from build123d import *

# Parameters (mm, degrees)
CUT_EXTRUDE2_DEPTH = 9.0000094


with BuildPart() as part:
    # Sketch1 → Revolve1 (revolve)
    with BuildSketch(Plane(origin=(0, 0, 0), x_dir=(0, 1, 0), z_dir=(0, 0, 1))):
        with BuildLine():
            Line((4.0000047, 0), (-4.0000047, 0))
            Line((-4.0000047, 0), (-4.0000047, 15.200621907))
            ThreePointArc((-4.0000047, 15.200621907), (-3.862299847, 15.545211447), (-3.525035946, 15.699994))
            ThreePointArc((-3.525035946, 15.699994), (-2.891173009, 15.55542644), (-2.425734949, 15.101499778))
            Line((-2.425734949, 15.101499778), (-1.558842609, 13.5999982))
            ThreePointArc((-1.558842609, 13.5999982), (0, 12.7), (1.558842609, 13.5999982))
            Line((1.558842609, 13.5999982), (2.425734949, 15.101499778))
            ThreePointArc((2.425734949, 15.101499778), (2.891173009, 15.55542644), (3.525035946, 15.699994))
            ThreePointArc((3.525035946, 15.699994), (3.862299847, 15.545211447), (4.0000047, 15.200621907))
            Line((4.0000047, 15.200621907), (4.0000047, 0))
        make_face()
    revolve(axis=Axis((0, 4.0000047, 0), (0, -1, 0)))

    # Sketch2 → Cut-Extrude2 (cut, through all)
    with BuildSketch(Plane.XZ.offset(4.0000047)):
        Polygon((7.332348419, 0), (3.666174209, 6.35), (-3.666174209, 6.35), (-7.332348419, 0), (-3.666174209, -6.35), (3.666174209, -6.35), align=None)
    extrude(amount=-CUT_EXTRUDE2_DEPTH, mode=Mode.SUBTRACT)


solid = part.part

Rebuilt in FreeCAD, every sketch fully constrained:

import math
import FreeCAD as App
import Part
import Sketcher

V = App.Vector
Q = App.Units.Quantity

doc = App.newDocument("Part")
body = doc.addObject("PartDesign::Body", "Body")

sketch1 = body.newObject("Sketcher::SketchObject", "Sketch")
sketch1.AttachmentSupport = (doc.getObject("XY_Plane"), [""])
sketch1.MapMode = "FlatFace"
sketch1.addGeometry([
    Part.LineSegment(V(0, -4, 0), V(0, 4, 0)),
    Part.LineSegment(V(0, 4, 0), V(-15.2, 4, 0)),
    Part.ArcOfCircle(Part.Circle(V(-15.2, 3.5, 0), V(0, 0, 1), 0.5), math.radians(90), math.radians(177)),
    Part.ArcOfCircle(Part.Circle(V(-14.5, 3.46, 0), V(0, 0, 1), 1.2), math.radians(177), math.radians(240)),
    Part.LineSegment(V(-15.1, 2.43, 0), V(-13.6, 1.56, 0)),
    Part.ArcOfCircle(Part.Circle(V(-14.5, 0, 0), V(0, 0, 1), 1.8), math.radians(-60), math.radians(60)),
    Part.LineSegment(V(-13.6, -1.56, 0), V(-15.1, -2.43, 0)),
    Part.ArcOfCircle(Part.Circle(V(-14.5, -3.46, 0), V(0, 0, 1), 1.2), math.radians(120), math.radians(183)),
    Part.ArcOfCircle(Part.Circle(V(-15.2, -3.5, 0), V(0, 0, 1), 0.5), math.radians(-177), math.radians(-90)),
    Part.LineSegment(V(-15.2, -4, 0), V(0, -4, 0)),
], False)
sketch1.addConstraint([
    Sketcher.Constraint("Coincident", 0, 2, 1, 1),
    Sketcher.Constraint("Tangent", 1, 2, 2, 1),
    Sketcher.Constraint("Tangent", 2, 2, 3, 1),
    Sketcher.Constraint("Tangent", 3, 2, 4, 1),
    Sketcher.Constraint("Tangent", 4, 2, 5, 2),
    Sketcher.Constraint("Tangent", 5, 1, 6, 1),
    Sketcher.Constraint("Tangent", 6, 2, 7, 1),
    Sketcher.Constraint("Tangent", 7, 2, 8, 1),
    Sketcher.Constraint("Tangent", 8, 2, 9, 1),
    Sketcher.Constraint("Coincident", 9, 2, 0, 1),
    Sketcher.Constraint("Vertical", 0),
    Sketcher.Constraint("Horizontal", 1),
    Sketcher.Constraint("Horizontal", 9),
    Sketcher.Constraint("Equal", 3, 7),
    Sketcher.Constraint("Equal", 2, 8),
    Sketcher.Constraint("Symmetric", 0, 2, 9, 2, -1, 1),
    Sketcher.Constraint("Symmetric", 3, 3, 7, 3, -1),
    Sketcher.Constraint("PointOnObject", 5, 3, -1),
    Sketcher.Constraint("Radius", 2, Q("0.499999 mm")),
    Sketcher.Constraint("Angle", 4, Q("-30 deg")),
    Sketcher.Constraint("DistanceX", 4, 2, -1, 1, Q("13.599998 mm")),
    Sketcher.Constraint("DistanceX", 3, 2, 3, 3, Q("0.599999 mm")),
    Sketcher.Constraint("DistanceX", 5, 3, 4, 2, Q("0.899998 mm")),
    Sketcher.Constraint("DistanceX", 1, 2, 1, 1, Q("15.200622 mm")),
    Sketcher.Constraint("DistanceY", 0, 1, 0, 2, Q("8.000009 mm")),
])
revolution = body.newObject("PartDesign::Revolution", "Revolution")
revolution.Profile = sketch1
revolution.ReferenceAxis = (sketch1, ["V_Axis"])
revolution.Angle = 360

sketch2 = body.newObject("Sketcher::SketchObject", "Sketch001")
sketch2.AttachmentSupport = (doc.getObject("XZ_Plane"), [""])
sketch2.MapMode = "FlatFace"
sketch2.AttachmentOffset = App.Placement(V(0, 0, 4.000005), App.Rotation())
sketch2.addGeometry([
    Part.LineSegment(V(7, 0, 0), V(4, 6, 0)),
    Part.LineSegment(V(4, 6, 0), V(-4, 6, 0)),
    Part.LineSegment(V(-4, 6, 0), V(-7, 0, 0)),
    Part.LineSegment(V(-7, 0, 0), V(-4, -6, 0)),
    Part.LineSegment(V(-4, -6, 0), V(4, -6, 0)),
    Part.LineSegment(V(4, -6, 0), V(7, 0, 0)),
], False)
sketch2.addConstraint([
    Sketcher.Constraint("Coincident", 0, 2, 1, 1),
    Sketcher.Constraint("Coincident", 1, 2, 2, 1),
    Sketcher.Constraint("Coincident", 2, 2, 3, 1),
    Sketcher.Constraint("Coincident", 3, 2, 4, 1),
    Sketcher.Constraint("Coincident", 4, 2, 5, 1),
    Sketcher.Constraint("Coincident", 5, 2, 0, 1),
    Sketcher.Constraint("Horizontal", 1),
    Sketcher.Constraint("Horizontal", 4),
    Sketcher.Constraint("Symmetric", 0, 2, 3, 2, -1, 1),
    Sketcher.Constraint("Symmetric", 2, 2, 5, 2, -1, 1),
    Sketcher.Constraint("PointOnObject", 2, 2, -1),
    Sketcher.Constraint("Parallel", 2, 5),
    Sketcher.Constraint("Vertical", 1, 2, 3, 2),
    Sketcher.Constraint("Angle", 0, Q("120 deg")),
    Sketcher.Constraint("DistanceY", 3, 2, 1, 2, Q("12.7 mm")),
    Sketcher.Constraint("DistanceX", 1, 2, 1, 1, Q("7.332348 mm")),
])
pocket1 = body.newObject("PartDesign::Pocket", "Pocket")
pocket1.Profile = sketch2
pocket1.Type = "ThroughAll"

doc.recompute()
